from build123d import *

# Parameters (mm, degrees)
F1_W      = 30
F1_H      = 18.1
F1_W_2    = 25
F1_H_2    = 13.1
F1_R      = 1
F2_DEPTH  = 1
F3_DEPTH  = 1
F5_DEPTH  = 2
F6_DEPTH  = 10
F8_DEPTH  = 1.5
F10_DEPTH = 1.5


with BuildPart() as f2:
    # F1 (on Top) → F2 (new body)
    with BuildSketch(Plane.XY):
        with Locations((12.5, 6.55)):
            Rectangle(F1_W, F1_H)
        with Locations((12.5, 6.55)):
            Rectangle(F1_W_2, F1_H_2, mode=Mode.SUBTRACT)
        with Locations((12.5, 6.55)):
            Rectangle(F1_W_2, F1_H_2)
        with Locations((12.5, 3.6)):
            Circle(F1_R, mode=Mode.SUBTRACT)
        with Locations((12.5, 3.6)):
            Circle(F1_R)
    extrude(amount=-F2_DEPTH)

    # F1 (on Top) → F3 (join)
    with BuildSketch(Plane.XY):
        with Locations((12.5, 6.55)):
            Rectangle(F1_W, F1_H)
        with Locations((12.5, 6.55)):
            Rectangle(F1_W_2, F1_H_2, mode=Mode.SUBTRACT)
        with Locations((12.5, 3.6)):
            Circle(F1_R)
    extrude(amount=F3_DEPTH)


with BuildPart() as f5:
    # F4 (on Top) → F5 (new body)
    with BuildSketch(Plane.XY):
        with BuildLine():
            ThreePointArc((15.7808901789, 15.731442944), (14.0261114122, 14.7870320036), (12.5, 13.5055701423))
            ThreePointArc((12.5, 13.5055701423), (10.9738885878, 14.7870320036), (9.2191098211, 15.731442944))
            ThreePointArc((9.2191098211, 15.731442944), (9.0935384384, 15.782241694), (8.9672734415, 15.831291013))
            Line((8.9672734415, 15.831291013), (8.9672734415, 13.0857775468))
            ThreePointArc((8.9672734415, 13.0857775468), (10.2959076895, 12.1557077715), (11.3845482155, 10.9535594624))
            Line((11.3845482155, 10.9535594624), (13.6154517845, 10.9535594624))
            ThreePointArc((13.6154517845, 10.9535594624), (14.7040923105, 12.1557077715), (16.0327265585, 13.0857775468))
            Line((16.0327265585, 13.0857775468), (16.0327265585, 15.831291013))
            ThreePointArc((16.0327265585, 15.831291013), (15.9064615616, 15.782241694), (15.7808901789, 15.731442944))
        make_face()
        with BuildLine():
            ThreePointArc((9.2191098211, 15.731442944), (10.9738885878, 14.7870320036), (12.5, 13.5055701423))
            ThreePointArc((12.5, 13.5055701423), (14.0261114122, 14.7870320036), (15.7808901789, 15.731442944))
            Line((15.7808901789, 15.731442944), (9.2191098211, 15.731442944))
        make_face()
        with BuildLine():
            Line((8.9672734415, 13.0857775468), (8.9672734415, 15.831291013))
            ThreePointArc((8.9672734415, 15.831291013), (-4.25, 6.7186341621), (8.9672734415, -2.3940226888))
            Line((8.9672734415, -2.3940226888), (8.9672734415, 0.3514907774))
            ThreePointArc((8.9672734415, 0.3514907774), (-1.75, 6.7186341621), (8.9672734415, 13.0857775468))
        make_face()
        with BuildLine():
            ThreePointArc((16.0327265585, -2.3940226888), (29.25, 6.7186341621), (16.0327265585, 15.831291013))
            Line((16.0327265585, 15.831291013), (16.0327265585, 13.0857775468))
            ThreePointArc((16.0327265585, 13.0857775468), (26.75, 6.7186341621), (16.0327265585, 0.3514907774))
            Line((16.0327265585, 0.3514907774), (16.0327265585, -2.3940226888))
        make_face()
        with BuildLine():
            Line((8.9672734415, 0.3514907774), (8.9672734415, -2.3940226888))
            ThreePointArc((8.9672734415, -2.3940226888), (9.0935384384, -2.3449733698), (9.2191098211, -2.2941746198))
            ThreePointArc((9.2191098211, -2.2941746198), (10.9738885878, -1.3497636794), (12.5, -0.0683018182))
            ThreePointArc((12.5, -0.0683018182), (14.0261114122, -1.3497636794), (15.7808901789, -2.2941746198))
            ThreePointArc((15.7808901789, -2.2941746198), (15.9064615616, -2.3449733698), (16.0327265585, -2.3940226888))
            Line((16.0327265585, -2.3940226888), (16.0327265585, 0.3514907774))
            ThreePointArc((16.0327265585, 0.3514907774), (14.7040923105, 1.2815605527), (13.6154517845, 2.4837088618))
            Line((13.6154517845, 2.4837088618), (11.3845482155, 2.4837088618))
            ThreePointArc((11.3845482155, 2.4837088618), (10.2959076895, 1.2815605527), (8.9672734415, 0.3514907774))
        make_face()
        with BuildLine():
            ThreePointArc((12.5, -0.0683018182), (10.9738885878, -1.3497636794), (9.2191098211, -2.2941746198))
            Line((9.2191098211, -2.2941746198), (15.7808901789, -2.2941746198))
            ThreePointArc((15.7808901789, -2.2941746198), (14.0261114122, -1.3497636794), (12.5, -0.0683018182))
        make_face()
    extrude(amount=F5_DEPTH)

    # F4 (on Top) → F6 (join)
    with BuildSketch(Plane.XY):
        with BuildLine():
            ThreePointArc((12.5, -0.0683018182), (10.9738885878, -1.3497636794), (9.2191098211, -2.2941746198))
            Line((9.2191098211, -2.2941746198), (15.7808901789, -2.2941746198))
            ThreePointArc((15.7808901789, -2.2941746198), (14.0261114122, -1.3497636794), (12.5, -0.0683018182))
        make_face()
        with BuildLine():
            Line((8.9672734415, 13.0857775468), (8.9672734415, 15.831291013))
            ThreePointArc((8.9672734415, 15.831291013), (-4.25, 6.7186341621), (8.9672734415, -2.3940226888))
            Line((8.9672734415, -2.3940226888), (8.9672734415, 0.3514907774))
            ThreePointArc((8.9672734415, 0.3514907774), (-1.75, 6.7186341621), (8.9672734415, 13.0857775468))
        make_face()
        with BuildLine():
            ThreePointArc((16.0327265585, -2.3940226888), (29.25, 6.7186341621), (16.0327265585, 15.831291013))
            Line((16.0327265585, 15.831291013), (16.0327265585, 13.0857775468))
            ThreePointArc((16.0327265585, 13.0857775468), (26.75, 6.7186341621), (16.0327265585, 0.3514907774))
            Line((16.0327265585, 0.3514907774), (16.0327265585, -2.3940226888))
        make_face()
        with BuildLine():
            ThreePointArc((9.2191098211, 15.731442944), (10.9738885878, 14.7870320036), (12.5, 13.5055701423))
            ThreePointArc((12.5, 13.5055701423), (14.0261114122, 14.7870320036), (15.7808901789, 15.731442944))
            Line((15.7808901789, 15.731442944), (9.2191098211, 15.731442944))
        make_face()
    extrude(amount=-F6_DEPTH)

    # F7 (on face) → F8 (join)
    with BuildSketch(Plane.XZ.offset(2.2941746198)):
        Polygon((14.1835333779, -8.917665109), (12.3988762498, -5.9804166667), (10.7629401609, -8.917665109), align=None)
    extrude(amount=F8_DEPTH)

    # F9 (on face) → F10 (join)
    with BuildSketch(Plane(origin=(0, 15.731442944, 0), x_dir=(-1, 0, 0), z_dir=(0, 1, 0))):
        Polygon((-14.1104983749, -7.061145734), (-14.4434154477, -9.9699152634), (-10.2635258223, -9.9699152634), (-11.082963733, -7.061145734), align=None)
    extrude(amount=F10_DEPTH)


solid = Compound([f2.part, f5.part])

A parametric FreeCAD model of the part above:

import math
import FreeCAD as App
import Part
import Sketcher
from FreeCAD import Vector

doc = App.newDocument("Part")
body = doc.addObject("PartDesign::Body", "Body")

sketch1 = doc.addObject("Sketcher::SketchObject", "Sketch")
body.addObject(sketch1)
sketch1.AttachmentSupport = (doc.XY_Plane, [""])
sketch1.MapMode = "FlatFace"
sketch1.addGeometry([
    Part.LineSegment(Vector(-2.5, 15.6, 0), Vector(-2.5, -2.5, 0)),
    Part.LineSegment(Vector(-2.5, -2.5, 0), Vector(27.5, -2.5, 0)),
    Part.LineSegment(Vector(27.5, -2.5, 0), Vector(27.5, 15.6, 0)),
    Part.LineSegment(Vector(27.5, 15.6, 0), Vector(-2.5, 15.6, 0)),
], False)
sketch1.addConstraint([
    Sketcher.Constraint("Coincident", 0, 2, 1, 1),
    Sketcher.Constraint("Coincident", 1, 2, 2, 1),
    Sketcher.Constraint("Coincident", 2, 2, 3, 1),
    Sketcher.Constraint("Coincident", 3, 2, 0, 1),
    Sketcher.Constraint("Vertical", 0),
    Sketcher.Constraint("Horizontal", 1),
    Sketcher.Constraint("Vertical", 2),
    Sketcher.Constraint("Horizontal", 3),
    Sketcher.Constraint("DistanceX", 1, 1, 1, 2, 30.0),
    Sketcher.Constraint("DistanceY", 0, 2, 0, 1, 18.1),
    Sketcher.Constraint("DistanceX", 0, 2, -1, 1, 2.5),
    Sketcher.Constraint("DistanceY", 0, 2, -1, 1, 2.5),
])
pad1 = doc.addObject("PartDesign::Pad", "Pad")
body.addObject(pad1)
pad1.Profile = sketch1
pad1.Length = 1
pad1.Reversed = True

sketch2 = doc.addObject("Sketcher::SketchObject", "Sketch001")
body.addObject(sketch2)
sketch2.AttachmentSupport = (doc.XY_Plane, [""])
sketch2.MapMode = "FlatFace"
sketch2.addGeometry([
    Part.LineSegment(Vector(-2.5, 15.6, 0), Vector(-2.5, -2.5, 0)),
    Part.LineSegment(Vector(-2.5, -2.5, 0), Vector(27.5, -2.5, 0)),
    Part.LineSegment(Vector(27.5, -2.5, 0), Vector(27.5, 15.6, 0)),
    Part.LineSegment(Vector(27.5, 15.6, 0), Vector(-2.5, 15.6, 0)),
    Part.LineSegment(Vector(25, 0, 0), Vector(0, 0, 0)),
    Part.LineSegment(Vector(0, 0, 0), Vector(0, 13.1, 0)),
    Part.LineSegment(Vector(0, 13.1, 0), Vector(25, 13.1, 0)),
    Part.LineSegment(Vector(25, 13.1, 0), Vector(25, 0, 0)),
    Part.Circle(Vector(12.5, 3.6, 0), Vector(0, 0, 1), 1),
], False)
sketch2.addConstraint([
    Sketcher.Constraint("Coincident", 0, 2, 1, 1),
    Sketcher.Constraint("Coincident", 1, 2, 2, 1),
    Sketcher.Constraint("Coincident", 2, 2, 3, 1),
    Sketcher.Constraint("Coincident", 3, 2, 0, 1),
    Sketcher.Constraint("Coincident", 4, 2, 5, 1),
    Sketcher.Constraint("Coincident", 5, 2, 6, 1),
    Sketcher.Constraint("Coincident", 6, 2, 7, 1),
    Sketcher.Constraint("Coincident", 7, 2, 4, 1),
    Sketcher.Constraint("Vertical", 0),
    Sketcher.Constraint("Horizontal", 1),
    Sketcher.Constraint("Vertical", 2),
    Sketcher.Constraint("Horizontal", 3),
    Sketcher.Constraint("Horizontal", 4),
    Sketcher.Constraint("Vertical", 5),
    Sketcher.Constraint("Horizontal", 6),
    Sketcher.Constraint("Vertical", 7),
    Sketcher.Constraint("Coincident", 4, 2, -1, 1),
    Sketcher.Constraint("Diameter", 8, 2.0),
    Sketcher.Constraint("DistanceX", 1, 1, 1, 2, 30.0),
    Sketcher.Constraint("DistanceX", 4, 2, 4, 1, 25.0),
    Sketcher.Constraint("DistanceY", 0, 2, 0, 1, 18.1),
    Sketcher.Constraint("DistanceY", 5, 1, 5, 2, 13.1),
    Sketcher.Constraint("DistanceX", 0, 2, 8, 3, 15.0),
    Sketcher.Constraint("DistanceY", 8, 3, 2, 2, 12.0),
    Sketcher.Constraint("DistanceX", -1, 1, 8, 3, 12.5),
    Sketcher.Constraint("DistanceY", -1, 1, 8, 3, 3.6),
])
pad2 = doc.addObject("PartDesign::Pad", "Pad001")
body.addObject(pad2)
pad2.Profile = sketch2
pad2.Length = 1
body2 = doc.addObject("PartDesign::Body", "Body001")

sketch3 = doc.addObject("Sketcher::SketchObject", "Sketch002")
body2.addObject(sketch3)
sketch3.AttachmentSupport = (doc.getObject("XY_Plane001"), [""])
sketch3.MapMode = "FlatFace"
sketch3.addGeometry([
    Part.ArcOfCircle(Part.Circle(Vector(5.5, 6.718634, 0), Vector(0, 0, 1), 9.75), math.radians(67.576648), math.radians(69.168688)),
    Part.ArcOfCircle(Part.Circle(Vector(5.5, 6.718634, 0), Vector(0, 0, 1), 9.75), math.radians(69.168688), math.radians(290.831312)),
    Part.ArcOfCircle(Part.Circle(Vector(5.5, 6.718634, 0), Vector(0, 0, 1), 9.75), math.radians(-69.168688), math.radians(-67.576648)),
    Part.LineSegment(Vector(9.21911, -2.294175, 0), Vector(15.78089, -2.294175, 0)),
    Part.ArcOfCircle(Part.Circle(Vector(19.5, 6.718634, 0), Vector(0, 0, 1), 9.75), math.radians(-112.423352), math.radians(-110.831312)),
    Part.ArcOfCircle(Part.Circle(Vector(19.5, 6.718634, 0), Vector(0, 0, 1), 9.75), math.radians(-110.831312), math.radians(110.831312)),
    Part.ArcOfCircle(Part.Circle(Vector(19.5, 6.718634, 0), Vector(0, 0, 1), 9.75), math.radians(110.831312), math.radians(112.423352)),
    Part.LineSegment(Vector(15.78089, 15.731443, 0), Vector(9.21911, 15.731443, 0)),
    Part.ArcOfCircle(Part.Circle(Vector(5.5, 6.718634, 0), Vector(0, 0, 1), 7.25), math.radians(61.429182), math.radians(298.570818)),
    Part.ArcOfCircle(Part.Circle(Vector(5.5, 6.718634, 0), Vector(0, 0, 1), 7.25), math.radians(35.741385), math.radians(61.429182)),
    Part.LineSegment(Vector(11.384548, 10.953559, 0), Vector(13.615452, 10.953559, 0)),
    Part.ArcOfCircle(Part.Circle(Vector(19.5, 6.718634, 0), Vector(0, 0, 1), 7.25), math.radians(118.570818), math.radians(144.258615)),
    Part.ArcOfCircle(Part.Circle(Vector(19.5, 6.718634, 0), Vector(0, 0, 1), 7.25), math.radians(-118.570818), math.radians(118.570818)),
    Part.ArcOfCircle(Part.Circle(Vector(19.5, 6.718634, 0), Vector(0, 0, 1), 7.25), math.radians(-144.258615), math.radians(-118.570818)),
    Part.LineSegment(Vector(13.615452, 2.483709, 0), Vector(11.384548, 2.483709, 0)),
    Part.ArcOfCircle(Part.Circle(Vector(5.5, 6.718634, 0), Vector(0, 0, 1), 7.25), math.radians(-61.429182), math.radians(-35.741385)),
], False)
sketch3.addConstraint([
    Sketcher.Constraint("Tangent", 0, 2, 1, 1),
    Sketcher.Constraint("Tangent", 1, 2, 2, 1),
    Sketcher.Constraint("Coincident", 2, 2, 3, 1),
    Sketcher.Constraint("Coincident", 3, 2, 4, 1),
    Sketcher.Constraint("Tangent", 4, 2, 5, 1),
    Sketcher.Constraint("Tangent", 5, 2, 6, 1),
    Sketcher.Constraint("Coincident", 6, 2, 7, 1),
    Sketcher.Constraint("Coincident", 7, 2, 0, 1),
    Sketcher.Constraint("Tangent", 8, 1, 9, 2),
    Sketcher.Constraint("Coincident", 9, 1, 10, 1),
    Sketcher.Constraint("Coincident", 10, 2, 11, 2),
    Sketcher.Constraint("Tangent", 11, 1, 12, 2),
    Sketcher.Constraint("Tangent", 12, 1, 13, 2),
    Sketcher.Constraint("Coincident", 13, 1, 14, 1),
    Sketcher.Constraint("Coincident", 14, 2, 15, 2),
    Sketcher.Constraint("Tangent", 15, 1, 8, 2),
    Sketcher.Constraint("Horizontal", 3),
    Sketcher.Constraint("Horizontal", 7),
    Sketcher.Constraint("Horizontal", 10),
    Sketcher.Constraint("Horizontal", 14),
    Sketcher.Constraint("Coincident", 2, 3, 0, 3),
    Sketcher.Constraint("Coincident", 6, 3, 4, 3),
    Sketcher.Constraint("Coincident", 8, 3, 0, 3),
    Sketcher.Constraint("Coincident", 11, 3, 4, 3),
    Sketcher.Constraint("Coincident", 13, 3, 4, 3),
    Sketcher.Constraint("Equal", 2, 4),
    Sketcher.Constraint("Equal", 8, 9),
    Sketcher.Constraint("Equal", 9, 11),
    Sketcher.Constraint("Equal", 13, 15),
    Sketcher.Constraint("Horizontal", 2, 3, 4, 3),
    Sketcher.Constraint("Horizontal", 1, 2, 4, 2),
    Sketcher.Constraint("Horizontal", 0, 2, 5, 2),
    Sketcher.Constraint("Horizontal", 8, 1, 11, 1),
    Sketcher.Constraint("Horizontal", 12, 1, 15, 1),
    Sketcher.Constraint("Vertical", 0, 2, 1, 2),
    Sketcher.Constraint("Vertical", 3, 2, 6, 2),
    Sketcher.Constraint("Vertical", 1, 2, 8, 1),
    Sketcher.Constraint("Vertical", 11, 1, 12, 1),
    Sketcher.Constraint("Vertical", 10, 2, 13, 1),
    Sketcher.Constraint("Radius", 0, 9.75),
    Sketcher.Constraint("Radius", 8, 7.25),
    Sketcher.Constraint("DistanceX", 0, 3, 4, 3, 14.0),
    Sketcher.Constraint("DistanceX", -1, 1, 0, 3, 5.5),
    Sketcher.Constraint("DistanceX", 3, 1, 3, 2, 6.56178),
    Sketcher.Constraint("DistanceX", 10, 1, 10, 2, 2.230904),
    Sketcher.Constraint("DistanceY", -1, 1, 0, 2, 15.831291),
    Sketcher.Constraint("DistanceY", -1, 1, 9, 1, 10.953559),
])
pad3 = doc.addObject("PartDesign::Pad", "Pad002")
body2.addObject(pad3)
pad3.Profile = sketch3
pad3.Length = 2

sketch4 = doc.addObject("Sketcher::SketchObject", "Sketch003")
body2.addObject(sketch4)
sketch4.AttachmentSupport = (doc.getObject("XY_Plane001"), [""])
sketch4.MapMode = "FlatFace"
sketch4.addGeometry([
    Part.ArcOfCircle(Part.Circle(Vector(5.5, 6.718634, 0), Vector(0, 0, 1), 9.75), math.radians(-67.576648), math.radians(-44.114619)),
    Part.LineSegment(Vector(9.21911, -2.294175, 0), Vector(15.78089, -2.294175, 0)),
    Part.ArcOfCircle(Part.Circle(Vector(19.5, 6.718634, 0), Vector(0, 0, 1), 9.75), math.radians(-135.885381), math.radians(-112.423352)),
    Part.LineSegment(Vector(8.967273, 13.085778, 0), Vector(8.967273, 15.831291, 0)),
    Part.ArcOfCircle(Part.Circle(Vector(5.5, 6.718634, 0), Vector(0, 0, 1), 9.75), math.radians(69.168688), math.radians(290.831312)),
    Part.LineSegment(Vector(8.967273, -2.394023, 0), Vector(8.967273, 0.351491, 0)),
    Part.ArcOfCircle(Part.Circle(Vector(5.5, 6.718634, 0), Vector(0, 0, 1), 7.25), math.radians(61.429182), math.radians(298.570818)),
    Part.ArcOfCircle(Part.Circle(Vector(19.5, 6.718634, 0), Vector(0, 0, 1), 9.75), math.radians(-110.831312), math.radians(110.831312)),
    Part.LineSegment(Vector(16.032727, 15.831291, 0), Vector(16.032727, 13.085778, 0)),
    Part.ArcOfCircle(Part.Circle(Vector(19.5, 6.718634, 0), Vector(0, 0, 1), 7.25), math.radians(-118.570818), math.radians(118.570818)),
    Part.LineSegment(Vector(16.032727, 0.351491, 0), Vector(16.032727, -2.394023, 0)),
    Part.ArcOfCircle(Part.Circle(Vector(5.5, 6.718634, 0), Vector(0, 0, 1), 9.75), math.radians(44.114619), math.radians(67.576648)),
    Part.ArcOfCircle(Part.Circle(Vector(19.5, 6.718634, 0), Vector(0, 0, 1), 9.75), math.radians(112.423352), math.radians(135.885381)),
    Part.LineSegment(Vector(15.78089, 15.731443, 0), Vector(9.21911, 15.731443, 0)),
], False)
sketch4.addConstraint([
    Sketcher.Constraint("Coincident", 0, 1, 1, 1),
    Sketcher.Constraint("Coincident", 1, 2, 2, 2),
    Sketcher.Constraint("Coincident", 2, 1, 0, 2),
    Sketcher.Constraint("Coincident", 3, 2, 4, 1),
    Sketcher.Constraint("Coincident", 4, 2, 5, 1),
    Sketcher.Constraint("Coincident", 5, 2, 6, 2),
    Sketcher.Constraint("Coincident", 6, 1, 3, 1),
    Sketcher.Constraint("Coincident", 7, 2, 8, 1),
    Sketcher.Constraint("Coincident", 8, 2, 9, 2),
    Sketcher.Constraint("Coincident", 9, 1, 10, 1),
    Sketcher.Constraint("Coincident", 10, 2, 7, 1),
    Sketcher.Constraint("Coincident", 11, 1, 12, 2),
    Sketcher.Constraint("Coincident", 12, 1, 13, 1),
    Sketcher.Constraint("Coincident", 13, 2, 11, 2),
    Sketcher.Constraint("Horizontal", 1),
    Sketcher.Constraint("Vertical", 3),
    Sketcher.Constraint("Vertical", 5),
    Sketcher.Constraint("Vertical", 8),
    Sketcher.Constraint("Vertical", 10),
    Sketcher.Constraint("Horizontal", 13),
    Sketcher.Constraint("Coincident", 4, 3, 0, 3),
    Sketcher.Constraint("Coincident", 6, 3, 0, 3),
    Sketcher.Constraint("Coincident", 7, 3, 2, 3),
    Sketcher.Constraint("Coincident", 9, 3, 2, 3),
    Sketcher.Constraint("Coincident", 11, 3, 0, 3),
    Sketcher.Constraint("Coincident", 12, 3, 2, 3),
    Sketcher.Constraint("Equal", 0, 2),
    Sketcher.Constraint("Equal", 2, 4),
    Sketcher.Constraint("Equal", 4, 7),
    Sketcher.Constraint("Equal", 6, 9),
    Sketcher.Constraint("Equal", 7, 11),
    Sketcher.Constraint("Equal", 11, 12),
    Sketcher.Constraint("Horizontal", 0, 3, 2, 3),
    Sketcher.Constraint("Horizontal", 3, 2, 7, 2),
    Sketcher.Constraint("Horizontal", 5, 2, 9, 1),
    Sketcher.Constraint("Vertical", 3, 2, 4, 2),
    Sketcher.Constraint("Vertical", 1, 2, 12, 1),
    Sketcher.Constraint("Radius", 0, 9.75),
    Sketcher.Constraint("Radius", 6, 7.25),
    Sketcher.Constraint("DistanceX", 0, 3, 2, 3, 14.0),
    Sketcher.Constraint("DistanceX", -1, 1, 0, 3, 5.5),
    Sketcher.Constraint("DistanceX", 1, 1, 1, 2, 6.56178),
    Sketcher.Constraint("DistanceY", 2, 1, -1, 1, 0.068302),
    Sketcher.Constraint("DistanceY", 3, 1, 3, 2, 2.745513),
])
pad4 = doc.addObject("PartDesign::Pad", "Pad003")
body2.addObject(pad4)
pad4.Profile = sketch4
pad4.Length = 10
pad4.Reversed = True

sketch5 = doc.addObject("Sketcher::SketchObject", "Sketch004")
body2.addObject(sketch5)
sketch5.AttachmentSupport = (doc.getObject("XZ_Plane001"), [""])
sketch5.MapMode = "FlatFace"
sketch5.AttachmentOffset = App.Placement(Vector(0, 0, 2.294175), App.Rotation())
sketch5.addGeometry([
    Part.LineSegment(Vector(14.183533, -8.917665, 0), Vector(12.398876, -5.980417, 0)),
    Part.LineSegment(Vector(12.398876, -5.980417, 0), Vector(10.76294, -8.917665, 0)),
    Part.LineSegment(Vector(10.76294, -8.917665, 0), Vector(14.183533, -8.917665, 0)),
], False)
sketch5.addConstraint([
    Sketcher.Constraint("Coincident", 0, 2, 1, 1),
    Sketcher.Constraint("Coincident", 1, 2, 2, 1),
    Sketcher.Constraint("Coincident", 2, 2, 0, 1),
    Sketcher.Constraint("Horizontal", 2),
    Sketcher.Constraint("Distance", 1, 3.3621),
    Sketcher.Constraint("Distance", 0, 3.436922),
    Sketcher.Constraint("DistanceX", 2, 1, 2, 2, 3.420593),
    Sketcher.Constraint("DistanceX", -1, 1, 1, 2, 10.76294),
    Sketcher.Constraint("DistanceY", 0, 2, -1, 1, 5.980417),
])
pad5 = doc.addObject("PartDesign::Pad", "Pad004")
body2.addObject(pad5)
pad5.Profile = sketch5
pad5.Length = 1.5

sketch6 = doc.addObject("Sketcher::SketchObject", "Sketch005")
body2.addObject(sketch6)
sketch6.AttachmentSupport = (doc.getObject("XZ_Plane001"), [""])
sketch6.MapMode = "FlatFace"
sketch6.AttachmentOffset = App.Placement(Vector(0, 0, -15.731443), App.Rotation())
sketch6.addGeometry([
    Part.LineSegment(Vector(14.110498, -7.061146, 0), Vector(14.443415, -9.969915, 0)),
    Part.LineSegment(Vector(14.443415, -9.969915, 0), Vector(10.263526, -9.969915, 0)),
    Part.LineSegment(Vector(10.263526, -9.969915, 0), Vector(11.082964, -7.061146, 0)),
    Part.LineSegment(Vector(11.082964, -7.061146, 0), Vector(14.110498, -7.061146, 0)),
], False)
sketch6.addConstraint([
    Sketcher.Constraint("Coincident", 0, 2, 1, 1),
    Sketcher.Constraint("Coincident", 1, 2, 2, 1),
    Sketcher.Constraint("Coincident", 2, 2, 3, 1),
    Sketcher.Constraint("Coincident", 3, 2, 0, 1),
    Sketcher.Constraint("Horizontal", 1),
    Sketcher.Constraint("Horizontal", 3),
    Sketcher.Constraint("DistanceX", 1, 2, 1, 1, 4.17989),
    Sketcher.Constraint("DistanceX", -1, 1, 3, 2, 14.110498),
    Sketcher.Constraint("Distance", 0, 2.927759),
    Sketcher.Constraint("Distance", 2, 3.021989),
    Sketcher.Constraint("DistanceX", 3, 1, 3, 2, 3.027535),
    Sketcher.Constraint("DistanceY", 0, 2, -1, 1, 9.969915),
])
pad6 = doc.addObject("PartDesign::Pad", "Pad005")
body2.addObject(pad6)
pad6.Profile = sketch6
pad6.Length = 1.5
pad6.Reversed = True

doc.recompute()
